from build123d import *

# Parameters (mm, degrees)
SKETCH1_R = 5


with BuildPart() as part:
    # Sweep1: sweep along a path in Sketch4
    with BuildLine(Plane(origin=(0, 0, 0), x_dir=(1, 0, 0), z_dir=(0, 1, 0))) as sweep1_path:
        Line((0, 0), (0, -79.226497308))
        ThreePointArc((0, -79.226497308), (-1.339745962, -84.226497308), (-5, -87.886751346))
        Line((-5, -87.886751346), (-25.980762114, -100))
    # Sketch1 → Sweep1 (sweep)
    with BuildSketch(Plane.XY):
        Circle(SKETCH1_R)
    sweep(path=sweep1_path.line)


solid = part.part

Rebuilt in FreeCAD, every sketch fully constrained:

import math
import FreeCAD as App
import Part
import Sketcher

V = App.Vector
Q = App.Units.Quantity

doc = App.newDocument("Part")
body = doc.addObject("PartDesign::Body", "Body")

sketch1 = doc.addObject("Sketcher::SketchObject", "Sketch")
body.addObject(sketch1)
sketch1.AttachmentSupport = (doc.XY_Plane, [""])
sketch1.MapMode = "FlatFace"
sketch1.addGeometry(Part.Circle(V(0, 0, 0), V(0, 0, 1), 5), False)
sketch1.addConstraint([
    Sketcher.Constraint("Coincident", 0, 3, -1, 1),
    Sketcher.Constraint("Diameter", 0, Q("10 mm")),
])

sketch2 = doc.addObject("Sketcher::SketchObject", "Sketch001")
body.addObject(sketch2)
sketch2.AttachmentSupport = (doc.XZ_Plane, [""])
sketch2.MapMode = "FlatFace"
sketch2.addGeometry([
    Part.LineSegment(V(0, 0, 0), V(0, 79, 0)),
    Part.ArcOfCircle(Part.Circle(V(-10, 79, 0), V(0, 0, 1), 10), math.radians(0), math.radians(60)),
    Part.LineSegment(V(-5, 88, 0), V(-26, 100, 0)),
], False)
sketch2.addConstraint([
    Sketcher.Constraint("Tangent", 0, 2, 1, 1),
    Sketcher.Constraint("Tangent", 1, 2, 2, 1),
    Sketcher.Constraint("Vertical", 0),
    Sketcher.Constraint("Coincident", 0, 1, -1, 1),
    Sketcher.Constraint("Radius", 1, Q("10 mm")),
    Sketcher.Constraint("Angle", 2, Q("150 deg")),
    Sketcher.Constraint("DistanceY", -1, 1, 2, 2, Q("100 mm")),
    Sketcher.Constraint("DistanceY", 0, 1, 0, 2, Q("79.226497 mm")),
])
doc.recompute()

additivepipe = doc.addObject("PartDesign::AdditivePipe", "AdditivePipe")
body.addObject(additivepipe)
additivepipe.Profile = sketch1
additivepipe.Spine = (sketch2, ["Edge1", "Edge2", "Edge3"])

doc.recompute()
